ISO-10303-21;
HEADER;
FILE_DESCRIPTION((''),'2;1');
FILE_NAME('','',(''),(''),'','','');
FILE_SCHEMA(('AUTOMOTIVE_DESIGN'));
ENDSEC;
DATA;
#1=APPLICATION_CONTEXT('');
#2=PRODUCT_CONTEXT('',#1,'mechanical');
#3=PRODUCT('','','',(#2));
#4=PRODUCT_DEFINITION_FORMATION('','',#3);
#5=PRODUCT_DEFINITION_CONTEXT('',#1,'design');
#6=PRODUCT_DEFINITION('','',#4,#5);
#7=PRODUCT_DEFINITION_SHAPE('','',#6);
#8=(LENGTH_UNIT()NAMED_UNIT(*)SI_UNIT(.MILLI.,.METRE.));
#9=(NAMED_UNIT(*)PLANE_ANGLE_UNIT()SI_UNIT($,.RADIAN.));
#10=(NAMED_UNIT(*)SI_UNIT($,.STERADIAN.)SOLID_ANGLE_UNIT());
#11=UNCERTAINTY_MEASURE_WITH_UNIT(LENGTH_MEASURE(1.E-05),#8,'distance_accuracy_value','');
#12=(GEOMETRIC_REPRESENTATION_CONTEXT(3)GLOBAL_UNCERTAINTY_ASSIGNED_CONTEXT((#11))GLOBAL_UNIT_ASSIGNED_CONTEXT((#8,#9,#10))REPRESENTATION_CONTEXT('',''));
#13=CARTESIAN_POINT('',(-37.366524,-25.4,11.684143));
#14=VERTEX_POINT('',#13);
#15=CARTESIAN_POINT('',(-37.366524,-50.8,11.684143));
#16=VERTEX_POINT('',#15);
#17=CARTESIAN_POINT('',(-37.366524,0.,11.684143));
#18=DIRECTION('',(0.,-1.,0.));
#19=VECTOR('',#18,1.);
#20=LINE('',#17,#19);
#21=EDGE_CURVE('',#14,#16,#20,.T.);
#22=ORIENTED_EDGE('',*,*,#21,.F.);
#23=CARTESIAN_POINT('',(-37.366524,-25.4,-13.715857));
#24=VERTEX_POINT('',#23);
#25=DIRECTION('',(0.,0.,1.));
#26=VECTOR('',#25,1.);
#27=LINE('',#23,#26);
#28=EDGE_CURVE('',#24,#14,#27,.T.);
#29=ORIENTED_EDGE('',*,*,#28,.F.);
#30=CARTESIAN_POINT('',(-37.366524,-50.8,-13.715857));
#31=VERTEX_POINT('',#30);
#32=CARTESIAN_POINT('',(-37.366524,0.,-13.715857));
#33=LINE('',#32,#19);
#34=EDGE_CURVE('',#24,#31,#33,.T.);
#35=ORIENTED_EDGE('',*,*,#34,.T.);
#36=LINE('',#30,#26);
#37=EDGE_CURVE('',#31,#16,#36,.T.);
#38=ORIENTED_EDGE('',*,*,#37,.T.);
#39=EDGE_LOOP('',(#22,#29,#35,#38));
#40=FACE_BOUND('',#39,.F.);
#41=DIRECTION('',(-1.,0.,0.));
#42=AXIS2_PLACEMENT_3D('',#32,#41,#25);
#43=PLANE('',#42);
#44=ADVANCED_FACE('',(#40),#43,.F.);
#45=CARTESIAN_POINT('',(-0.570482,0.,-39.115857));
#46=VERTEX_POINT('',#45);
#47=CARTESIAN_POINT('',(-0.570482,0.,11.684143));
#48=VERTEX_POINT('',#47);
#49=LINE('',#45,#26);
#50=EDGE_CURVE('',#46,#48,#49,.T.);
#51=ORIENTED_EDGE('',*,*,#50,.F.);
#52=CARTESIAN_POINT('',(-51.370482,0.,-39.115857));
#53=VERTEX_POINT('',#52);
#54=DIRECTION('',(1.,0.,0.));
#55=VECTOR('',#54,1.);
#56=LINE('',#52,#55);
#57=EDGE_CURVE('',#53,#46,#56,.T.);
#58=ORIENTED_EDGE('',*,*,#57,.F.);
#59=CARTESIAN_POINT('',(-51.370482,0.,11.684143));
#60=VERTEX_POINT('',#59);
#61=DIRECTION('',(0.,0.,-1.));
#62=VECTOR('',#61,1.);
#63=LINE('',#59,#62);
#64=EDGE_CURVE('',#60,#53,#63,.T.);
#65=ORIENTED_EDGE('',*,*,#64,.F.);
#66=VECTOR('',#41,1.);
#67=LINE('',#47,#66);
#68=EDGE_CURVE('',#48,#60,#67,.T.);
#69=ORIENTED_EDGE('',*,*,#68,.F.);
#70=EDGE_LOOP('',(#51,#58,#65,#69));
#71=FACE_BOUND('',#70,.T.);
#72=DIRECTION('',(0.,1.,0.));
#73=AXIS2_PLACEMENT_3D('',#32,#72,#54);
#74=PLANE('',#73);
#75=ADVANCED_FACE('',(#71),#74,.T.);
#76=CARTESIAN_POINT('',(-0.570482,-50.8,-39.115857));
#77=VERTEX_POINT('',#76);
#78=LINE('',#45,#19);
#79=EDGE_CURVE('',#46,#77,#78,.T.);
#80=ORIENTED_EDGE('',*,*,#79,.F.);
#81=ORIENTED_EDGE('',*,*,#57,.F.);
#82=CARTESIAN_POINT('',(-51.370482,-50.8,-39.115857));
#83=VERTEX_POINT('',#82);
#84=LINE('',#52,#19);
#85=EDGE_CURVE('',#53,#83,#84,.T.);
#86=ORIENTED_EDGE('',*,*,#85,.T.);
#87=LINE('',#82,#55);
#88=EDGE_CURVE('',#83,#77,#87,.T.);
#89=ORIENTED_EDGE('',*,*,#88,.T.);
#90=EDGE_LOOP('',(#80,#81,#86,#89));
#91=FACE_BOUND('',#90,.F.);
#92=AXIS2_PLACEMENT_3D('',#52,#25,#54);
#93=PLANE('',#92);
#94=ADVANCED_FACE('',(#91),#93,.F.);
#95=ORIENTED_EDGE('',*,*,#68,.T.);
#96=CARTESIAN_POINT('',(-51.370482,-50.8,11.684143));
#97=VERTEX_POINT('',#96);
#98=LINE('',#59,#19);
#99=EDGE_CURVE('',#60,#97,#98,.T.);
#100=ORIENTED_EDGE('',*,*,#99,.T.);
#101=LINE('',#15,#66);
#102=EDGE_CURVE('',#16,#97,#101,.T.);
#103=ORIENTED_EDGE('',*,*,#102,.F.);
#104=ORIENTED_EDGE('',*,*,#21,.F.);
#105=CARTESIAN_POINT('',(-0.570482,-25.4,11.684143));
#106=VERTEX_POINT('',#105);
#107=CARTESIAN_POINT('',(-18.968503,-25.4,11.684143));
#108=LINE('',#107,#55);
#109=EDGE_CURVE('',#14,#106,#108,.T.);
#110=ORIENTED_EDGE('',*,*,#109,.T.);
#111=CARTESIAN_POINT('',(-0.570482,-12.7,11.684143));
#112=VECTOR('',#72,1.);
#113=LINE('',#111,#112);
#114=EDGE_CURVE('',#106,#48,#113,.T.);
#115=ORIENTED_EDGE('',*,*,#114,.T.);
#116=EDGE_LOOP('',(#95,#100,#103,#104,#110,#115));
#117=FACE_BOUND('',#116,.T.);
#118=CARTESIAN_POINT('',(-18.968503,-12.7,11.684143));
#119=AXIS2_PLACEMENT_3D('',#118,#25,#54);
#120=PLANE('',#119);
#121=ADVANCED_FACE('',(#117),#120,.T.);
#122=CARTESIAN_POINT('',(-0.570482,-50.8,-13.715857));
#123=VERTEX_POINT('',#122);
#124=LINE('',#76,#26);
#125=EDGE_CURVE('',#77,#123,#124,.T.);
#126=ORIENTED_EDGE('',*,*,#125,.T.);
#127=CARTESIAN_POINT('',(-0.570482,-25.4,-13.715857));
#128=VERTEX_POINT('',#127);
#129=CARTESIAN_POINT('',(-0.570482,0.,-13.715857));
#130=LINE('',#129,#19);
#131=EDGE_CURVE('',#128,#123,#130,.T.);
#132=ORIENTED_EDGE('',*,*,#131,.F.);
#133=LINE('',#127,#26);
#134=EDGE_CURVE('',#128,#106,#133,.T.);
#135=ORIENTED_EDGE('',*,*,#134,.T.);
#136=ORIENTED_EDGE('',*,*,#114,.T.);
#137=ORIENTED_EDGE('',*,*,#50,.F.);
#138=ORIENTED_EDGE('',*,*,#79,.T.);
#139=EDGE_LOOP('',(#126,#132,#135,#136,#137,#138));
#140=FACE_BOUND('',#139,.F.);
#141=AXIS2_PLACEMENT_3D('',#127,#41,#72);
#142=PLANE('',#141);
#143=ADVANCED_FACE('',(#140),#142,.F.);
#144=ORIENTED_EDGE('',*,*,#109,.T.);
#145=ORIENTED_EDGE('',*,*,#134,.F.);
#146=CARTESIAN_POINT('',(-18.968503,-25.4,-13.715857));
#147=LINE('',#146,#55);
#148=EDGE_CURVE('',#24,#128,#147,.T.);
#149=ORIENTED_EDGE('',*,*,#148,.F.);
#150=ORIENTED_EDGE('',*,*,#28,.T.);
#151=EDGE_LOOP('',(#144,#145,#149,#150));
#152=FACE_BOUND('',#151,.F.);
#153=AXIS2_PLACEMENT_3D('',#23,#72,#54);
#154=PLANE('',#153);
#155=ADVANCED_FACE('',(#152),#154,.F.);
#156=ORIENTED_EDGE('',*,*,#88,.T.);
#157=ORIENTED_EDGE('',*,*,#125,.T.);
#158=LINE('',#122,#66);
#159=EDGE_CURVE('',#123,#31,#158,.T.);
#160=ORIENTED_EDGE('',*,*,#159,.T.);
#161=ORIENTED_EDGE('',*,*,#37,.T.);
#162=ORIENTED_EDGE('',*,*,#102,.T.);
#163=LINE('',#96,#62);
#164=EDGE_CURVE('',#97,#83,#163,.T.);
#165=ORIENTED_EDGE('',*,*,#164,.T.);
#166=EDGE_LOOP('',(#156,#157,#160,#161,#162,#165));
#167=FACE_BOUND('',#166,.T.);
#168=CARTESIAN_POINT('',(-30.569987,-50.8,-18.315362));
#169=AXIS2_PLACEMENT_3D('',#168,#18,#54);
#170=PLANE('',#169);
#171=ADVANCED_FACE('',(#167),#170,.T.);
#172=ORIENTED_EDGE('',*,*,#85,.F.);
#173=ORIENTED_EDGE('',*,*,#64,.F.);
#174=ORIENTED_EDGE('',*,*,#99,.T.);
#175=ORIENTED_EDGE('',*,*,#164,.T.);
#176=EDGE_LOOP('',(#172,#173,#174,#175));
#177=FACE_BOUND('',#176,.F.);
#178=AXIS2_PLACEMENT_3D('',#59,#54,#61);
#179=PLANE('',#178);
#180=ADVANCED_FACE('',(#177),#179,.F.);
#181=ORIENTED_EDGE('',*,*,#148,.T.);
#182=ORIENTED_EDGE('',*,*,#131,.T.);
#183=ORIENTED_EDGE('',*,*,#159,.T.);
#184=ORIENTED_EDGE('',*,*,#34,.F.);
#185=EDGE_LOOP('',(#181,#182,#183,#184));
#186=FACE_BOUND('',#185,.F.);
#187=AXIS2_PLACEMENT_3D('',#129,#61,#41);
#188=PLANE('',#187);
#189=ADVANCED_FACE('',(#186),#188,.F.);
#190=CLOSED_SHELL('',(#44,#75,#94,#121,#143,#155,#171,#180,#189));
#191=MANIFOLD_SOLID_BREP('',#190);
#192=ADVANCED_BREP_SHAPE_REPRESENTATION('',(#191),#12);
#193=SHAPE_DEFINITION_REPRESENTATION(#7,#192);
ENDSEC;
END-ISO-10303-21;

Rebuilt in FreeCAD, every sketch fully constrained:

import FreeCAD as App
import Part
import Sketcher

V = App.Vector
Q = App.Units.Quantity

doc = App.newDocument("Part")
params = doc.addObject("Spreadsheet::Sheet", "Params")
for row, (alias, value) in enumerate([
    ("sketch1_width", "2 in"),
    ("pad1_length", "2 in"),
    ("sketch2_height", "1 in"),
    ("pad2_length", "1 in"),
], start=1):
    params.set(f"A{row}", alias)
    params.set(f"B{row}", "=" + value)
    params.setAlias(f"B{row}", alias)

body = doc.addObject("PartDesign::Body", "Body")

# Sketch on XZ plane
sketch1 = body.newObject("Sketcher::SketchObject", "Sketch")
sketch1.AttachmentSupport = (doc.getObject("XZ_Plane"), [""])
sketch1.MapMode = "FlatFace"
sketch1.addGeometry([
    Part.LineSegment(V(-51, -39, 0), V(-1, -39, 0)),  # 0
    Part.LineSegment(V(-1, -39, 0), V(-1, -14, 0)),  # 1
    Part.LineSegment(V(-1, -14, 0), V(-37, -14, 0)),  # 2
    Part.LineSegment(V(-37, -14, 0), V(-37, 12, 0)),  # 3
    Part.LineSegment(V(-37, 12, 0), V(-51, 12, 0)),  # 4
    Part.LineSegment(V(-51, 12, 0), V(-51, -39, 0)),  # 5
], False)
sketch1.addConstraint([
    Sketcher.Constraint("Coincident", 0, 2, 1, 1),
    Sketcher.Constraint("Coincident", 1, 2, 2, 1),
    Sketcher.Constraint("Coincident", 2, 2, 3, 1),
    Sketcher.Constraint("Coincident", 3, 2, 4, 1),
    Sketcher.Constraint("Coincident", 4, 2, 5, 1),
    Sketcher.Constraint("Coincident", 5, 2, 0, 1),
    Sketcher.Constraint("Horizontal", 0),
    Sketcher.Constraint("Vertical", 1),
    Sketcher.Constraint("Horizontal", 2),
    Sketcher.Constraint("Vertical", 3),
    Sketcher.Constraint("Horizontal", 4),
    Sketcher.Constraint("Vertical", 5),
    Sketcher.Constraint("Equal", 1, 3),
    Sketcher.Constraint("Equal", 0, 5),
    Sketcher.Constraint("DistanceX", 0, 1, 0, 2, Q("2 in")),
    Sketcher.Constraint("DistanceX", 4, 2, 4, 1, 14.003958),
    Sketcher.Constraint("DistanceX", 0, 2, -1, 1, 0.570482),
    Sketcher.Constraint("DistanceY", 0, 2, -1, 1, 39.115857),
])
sketch1.setExpression("Constraints[14]", "Params.sketch1_width")
pad1 = body.newObject("PartDesign::Pad", "Pad")
pad1.Profile = sketch1
pad1.setExpression("Length", "Params.pad1_length")

# Sketch on XY plane
sketch2 = body.newObject("Sketcher::SketchObject", "Sketch001")
sketch2.AttachmentSupport = (doc.getObject("XY_Plane"), [""])
sketch2.MapMode = "FlatFace"
sketch2.AttachmentOffset = App.Placement(V(0, 0, -13.715857), App.Rotation())
sketch2.addGeometry([
    Part.LineSegment(V(-37, 0, 0), V(-37, -25, 0)),
    Part.LineSegment(V(-37, -25, 0), V(-1, -25, 0)),
    Part.LineSegment(V(-1, -25, 0), V(-1, 0, 0)),
    Part.LineSegment(V(-1, 0, 0), V(-37, 0, 0)),
], False)
sketch2.addConstraint([
    Sketcher.Constraint("Coincident", 0, 2, 1, 1),
    Sketcher.Constraint("Coincident", 1, 2, 2, 1),
    Sketcher.Constraint("Coincident", 2, 2, 3, 1),
    Sketcher.Constraint("Coincident", 3, 2, 0, 1),
    Sketcher.Constraint("Vertical", 0),
    Sketcher.Constraint("Horizontal", 1),
    Sketcher.Constraint("Vertical", 2),
    Sketcher.Constraint("Horizontal", 3),
    Sketcher.Constraint("PointOnObject", 2, 2, -1),
    Sketcher.Constraint("DistanceY", 0, 2, 0, 1, Q("1 in")),
    Sketcher.Constraint("DistanceX", 1, 1, 1, 2, 36.796042),
    Sketcher.Constraint("DistanceX", 0, 2, -1, 1, 37.366524),
])
sketch2.setExpression("Constraints[9]", "Params.sketch2_height")
pad2 = body.newObject("PartDesign::Pad", "Pad001")
pad2.Profile = sketch2
pad2.setExpression("Length", "Params.pad2_length")

doc.recompute()
